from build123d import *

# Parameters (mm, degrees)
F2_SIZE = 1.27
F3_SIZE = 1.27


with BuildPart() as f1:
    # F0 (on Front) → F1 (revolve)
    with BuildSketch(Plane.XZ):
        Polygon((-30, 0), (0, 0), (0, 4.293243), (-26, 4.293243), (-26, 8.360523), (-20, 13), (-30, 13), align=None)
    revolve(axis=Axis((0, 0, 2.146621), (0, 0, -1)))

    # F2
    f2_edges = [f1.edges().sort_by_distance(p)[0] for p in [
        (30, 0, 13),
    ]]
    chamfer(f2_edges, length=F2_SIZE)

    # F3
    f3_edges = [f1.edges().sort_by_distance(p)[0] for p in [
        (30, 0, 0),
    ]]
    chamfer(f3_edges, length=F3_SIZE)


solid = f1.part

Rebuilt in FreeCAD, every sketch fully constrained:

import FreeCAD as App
import Part
import Sketcher
from FreeCAD import Vector
Q = App.Units.Quantity


def edges_at(feature, points):
    """Names of the edges that pass closest to the given points."""
    edges = feature.Shape.Edges
    near = lambda p: min(range(len(edges)), key=lambda i: edges[i].distToShape(Part.Vertex(*p))[0])
    return sorted({f"Edge{near(p) + 1}" for p in points})


def add_polygon(sketch, points):
    """Adds a closed chain of lines whose ends are joined by coincident constraints."""
    first, n = sketch.GeometryCount, len(points)
    for a, b in zip(points, points[1:] + points[:1]):
        sketch.addGeometry(Part.LineSegment(App.Vector(*a, 0), App.Vector(*b, 0)), False)
    for i in range(n):
        sketch.addConstraint(Sketcher.Constraint("Coincident", first + i, 2, first + (i + 1) % n, 1))

doc = App.newDocument("Part")
body = doc.addObject("PartDesign::Body", "Body")

# Sketch on XZ plane
sketch1 = body.newObject("Sketcher::SketchObject", "Sketch")
sketch1.AttachmentSupport = (doc.getObject("XZ_Plane"), [""])
sketch1.MapMode = "FlatFace"
add_polygon(sketch1, [(-30, 0), (0, 0), (0, 4.293243), (-26, 4.293243), (-26, 8.360523), (-20, 13), (-30, 13)])  # lines 0-6
sketch1.addConstraint(Sketcher.Constraint("Horizontal", 0))
sketch1.addConstraint(Sketcher.Constraint("Vertical", 1))
sketch1.addConstraint(Sketcher.Constraint("Horizontal", 2))
sketch1.addConstraint(Sketcher.Constraint("Vertical", 3))
sketch1.addConstraint(Sketcher.Constraint("Horizontal", 5))
sketch1.addConstraint(Sketcher.Constraint("Vertical", 6))
sketch1.addConstraint(Sketcher.Constraint("Coincident", 0, 2, -1, 1))
sketch1.addConstraint(Sketcher.Constraint("DistanceX", 0, 1, 0, 2, Q("30 mm")))
sketch1.addConstraint(Sketcher.Constraint("DistanceX", 2, 2, 2, 1, Q("26 mm")))
sketch1.addConstraint(Sketcher.Constraint("DistanceX", 5, 2, 5, 1, Q("10 mm")))
sketch1.addConstraint(Sketcher.Constraint("DistanceY", 6, 2, 6, 1, Q("13 mm")))
sketch1.addConstraint(Sketcher.Constraint("DistanceY", 3, 1, 3, 2, Q("4.06728 mm")))
sketch1.addConstraint(Sketcher.Constraint("DistanceY", 1, 1, 1, 2, Q("4.293243 mm")))
revolution = body.newObject("PartDesign::Revolution", "Revolution")
revolution.Profile = sketch1
revolution.ReferenceAxis = (sketch1, ["V_Axis"])
revolution.Angle = 360
doc.recompute()

chamfer = body.newObject("PartDesign::Chamfer", "Chamfer")
chamfer.Base = (revolution, edges_at(revolution, [(30, 0, 13)]))
chamfer.Size = 1.27
doc.recompute()

chamfer2 = body.newObject("PartDesign::Chamfer", "Chamfer001")
chamfer2.Base = (chamfer, edges_at(chamfer, [(30, 0, 0)]))
chamfer2.Size = 1.27

doc.recompute()
